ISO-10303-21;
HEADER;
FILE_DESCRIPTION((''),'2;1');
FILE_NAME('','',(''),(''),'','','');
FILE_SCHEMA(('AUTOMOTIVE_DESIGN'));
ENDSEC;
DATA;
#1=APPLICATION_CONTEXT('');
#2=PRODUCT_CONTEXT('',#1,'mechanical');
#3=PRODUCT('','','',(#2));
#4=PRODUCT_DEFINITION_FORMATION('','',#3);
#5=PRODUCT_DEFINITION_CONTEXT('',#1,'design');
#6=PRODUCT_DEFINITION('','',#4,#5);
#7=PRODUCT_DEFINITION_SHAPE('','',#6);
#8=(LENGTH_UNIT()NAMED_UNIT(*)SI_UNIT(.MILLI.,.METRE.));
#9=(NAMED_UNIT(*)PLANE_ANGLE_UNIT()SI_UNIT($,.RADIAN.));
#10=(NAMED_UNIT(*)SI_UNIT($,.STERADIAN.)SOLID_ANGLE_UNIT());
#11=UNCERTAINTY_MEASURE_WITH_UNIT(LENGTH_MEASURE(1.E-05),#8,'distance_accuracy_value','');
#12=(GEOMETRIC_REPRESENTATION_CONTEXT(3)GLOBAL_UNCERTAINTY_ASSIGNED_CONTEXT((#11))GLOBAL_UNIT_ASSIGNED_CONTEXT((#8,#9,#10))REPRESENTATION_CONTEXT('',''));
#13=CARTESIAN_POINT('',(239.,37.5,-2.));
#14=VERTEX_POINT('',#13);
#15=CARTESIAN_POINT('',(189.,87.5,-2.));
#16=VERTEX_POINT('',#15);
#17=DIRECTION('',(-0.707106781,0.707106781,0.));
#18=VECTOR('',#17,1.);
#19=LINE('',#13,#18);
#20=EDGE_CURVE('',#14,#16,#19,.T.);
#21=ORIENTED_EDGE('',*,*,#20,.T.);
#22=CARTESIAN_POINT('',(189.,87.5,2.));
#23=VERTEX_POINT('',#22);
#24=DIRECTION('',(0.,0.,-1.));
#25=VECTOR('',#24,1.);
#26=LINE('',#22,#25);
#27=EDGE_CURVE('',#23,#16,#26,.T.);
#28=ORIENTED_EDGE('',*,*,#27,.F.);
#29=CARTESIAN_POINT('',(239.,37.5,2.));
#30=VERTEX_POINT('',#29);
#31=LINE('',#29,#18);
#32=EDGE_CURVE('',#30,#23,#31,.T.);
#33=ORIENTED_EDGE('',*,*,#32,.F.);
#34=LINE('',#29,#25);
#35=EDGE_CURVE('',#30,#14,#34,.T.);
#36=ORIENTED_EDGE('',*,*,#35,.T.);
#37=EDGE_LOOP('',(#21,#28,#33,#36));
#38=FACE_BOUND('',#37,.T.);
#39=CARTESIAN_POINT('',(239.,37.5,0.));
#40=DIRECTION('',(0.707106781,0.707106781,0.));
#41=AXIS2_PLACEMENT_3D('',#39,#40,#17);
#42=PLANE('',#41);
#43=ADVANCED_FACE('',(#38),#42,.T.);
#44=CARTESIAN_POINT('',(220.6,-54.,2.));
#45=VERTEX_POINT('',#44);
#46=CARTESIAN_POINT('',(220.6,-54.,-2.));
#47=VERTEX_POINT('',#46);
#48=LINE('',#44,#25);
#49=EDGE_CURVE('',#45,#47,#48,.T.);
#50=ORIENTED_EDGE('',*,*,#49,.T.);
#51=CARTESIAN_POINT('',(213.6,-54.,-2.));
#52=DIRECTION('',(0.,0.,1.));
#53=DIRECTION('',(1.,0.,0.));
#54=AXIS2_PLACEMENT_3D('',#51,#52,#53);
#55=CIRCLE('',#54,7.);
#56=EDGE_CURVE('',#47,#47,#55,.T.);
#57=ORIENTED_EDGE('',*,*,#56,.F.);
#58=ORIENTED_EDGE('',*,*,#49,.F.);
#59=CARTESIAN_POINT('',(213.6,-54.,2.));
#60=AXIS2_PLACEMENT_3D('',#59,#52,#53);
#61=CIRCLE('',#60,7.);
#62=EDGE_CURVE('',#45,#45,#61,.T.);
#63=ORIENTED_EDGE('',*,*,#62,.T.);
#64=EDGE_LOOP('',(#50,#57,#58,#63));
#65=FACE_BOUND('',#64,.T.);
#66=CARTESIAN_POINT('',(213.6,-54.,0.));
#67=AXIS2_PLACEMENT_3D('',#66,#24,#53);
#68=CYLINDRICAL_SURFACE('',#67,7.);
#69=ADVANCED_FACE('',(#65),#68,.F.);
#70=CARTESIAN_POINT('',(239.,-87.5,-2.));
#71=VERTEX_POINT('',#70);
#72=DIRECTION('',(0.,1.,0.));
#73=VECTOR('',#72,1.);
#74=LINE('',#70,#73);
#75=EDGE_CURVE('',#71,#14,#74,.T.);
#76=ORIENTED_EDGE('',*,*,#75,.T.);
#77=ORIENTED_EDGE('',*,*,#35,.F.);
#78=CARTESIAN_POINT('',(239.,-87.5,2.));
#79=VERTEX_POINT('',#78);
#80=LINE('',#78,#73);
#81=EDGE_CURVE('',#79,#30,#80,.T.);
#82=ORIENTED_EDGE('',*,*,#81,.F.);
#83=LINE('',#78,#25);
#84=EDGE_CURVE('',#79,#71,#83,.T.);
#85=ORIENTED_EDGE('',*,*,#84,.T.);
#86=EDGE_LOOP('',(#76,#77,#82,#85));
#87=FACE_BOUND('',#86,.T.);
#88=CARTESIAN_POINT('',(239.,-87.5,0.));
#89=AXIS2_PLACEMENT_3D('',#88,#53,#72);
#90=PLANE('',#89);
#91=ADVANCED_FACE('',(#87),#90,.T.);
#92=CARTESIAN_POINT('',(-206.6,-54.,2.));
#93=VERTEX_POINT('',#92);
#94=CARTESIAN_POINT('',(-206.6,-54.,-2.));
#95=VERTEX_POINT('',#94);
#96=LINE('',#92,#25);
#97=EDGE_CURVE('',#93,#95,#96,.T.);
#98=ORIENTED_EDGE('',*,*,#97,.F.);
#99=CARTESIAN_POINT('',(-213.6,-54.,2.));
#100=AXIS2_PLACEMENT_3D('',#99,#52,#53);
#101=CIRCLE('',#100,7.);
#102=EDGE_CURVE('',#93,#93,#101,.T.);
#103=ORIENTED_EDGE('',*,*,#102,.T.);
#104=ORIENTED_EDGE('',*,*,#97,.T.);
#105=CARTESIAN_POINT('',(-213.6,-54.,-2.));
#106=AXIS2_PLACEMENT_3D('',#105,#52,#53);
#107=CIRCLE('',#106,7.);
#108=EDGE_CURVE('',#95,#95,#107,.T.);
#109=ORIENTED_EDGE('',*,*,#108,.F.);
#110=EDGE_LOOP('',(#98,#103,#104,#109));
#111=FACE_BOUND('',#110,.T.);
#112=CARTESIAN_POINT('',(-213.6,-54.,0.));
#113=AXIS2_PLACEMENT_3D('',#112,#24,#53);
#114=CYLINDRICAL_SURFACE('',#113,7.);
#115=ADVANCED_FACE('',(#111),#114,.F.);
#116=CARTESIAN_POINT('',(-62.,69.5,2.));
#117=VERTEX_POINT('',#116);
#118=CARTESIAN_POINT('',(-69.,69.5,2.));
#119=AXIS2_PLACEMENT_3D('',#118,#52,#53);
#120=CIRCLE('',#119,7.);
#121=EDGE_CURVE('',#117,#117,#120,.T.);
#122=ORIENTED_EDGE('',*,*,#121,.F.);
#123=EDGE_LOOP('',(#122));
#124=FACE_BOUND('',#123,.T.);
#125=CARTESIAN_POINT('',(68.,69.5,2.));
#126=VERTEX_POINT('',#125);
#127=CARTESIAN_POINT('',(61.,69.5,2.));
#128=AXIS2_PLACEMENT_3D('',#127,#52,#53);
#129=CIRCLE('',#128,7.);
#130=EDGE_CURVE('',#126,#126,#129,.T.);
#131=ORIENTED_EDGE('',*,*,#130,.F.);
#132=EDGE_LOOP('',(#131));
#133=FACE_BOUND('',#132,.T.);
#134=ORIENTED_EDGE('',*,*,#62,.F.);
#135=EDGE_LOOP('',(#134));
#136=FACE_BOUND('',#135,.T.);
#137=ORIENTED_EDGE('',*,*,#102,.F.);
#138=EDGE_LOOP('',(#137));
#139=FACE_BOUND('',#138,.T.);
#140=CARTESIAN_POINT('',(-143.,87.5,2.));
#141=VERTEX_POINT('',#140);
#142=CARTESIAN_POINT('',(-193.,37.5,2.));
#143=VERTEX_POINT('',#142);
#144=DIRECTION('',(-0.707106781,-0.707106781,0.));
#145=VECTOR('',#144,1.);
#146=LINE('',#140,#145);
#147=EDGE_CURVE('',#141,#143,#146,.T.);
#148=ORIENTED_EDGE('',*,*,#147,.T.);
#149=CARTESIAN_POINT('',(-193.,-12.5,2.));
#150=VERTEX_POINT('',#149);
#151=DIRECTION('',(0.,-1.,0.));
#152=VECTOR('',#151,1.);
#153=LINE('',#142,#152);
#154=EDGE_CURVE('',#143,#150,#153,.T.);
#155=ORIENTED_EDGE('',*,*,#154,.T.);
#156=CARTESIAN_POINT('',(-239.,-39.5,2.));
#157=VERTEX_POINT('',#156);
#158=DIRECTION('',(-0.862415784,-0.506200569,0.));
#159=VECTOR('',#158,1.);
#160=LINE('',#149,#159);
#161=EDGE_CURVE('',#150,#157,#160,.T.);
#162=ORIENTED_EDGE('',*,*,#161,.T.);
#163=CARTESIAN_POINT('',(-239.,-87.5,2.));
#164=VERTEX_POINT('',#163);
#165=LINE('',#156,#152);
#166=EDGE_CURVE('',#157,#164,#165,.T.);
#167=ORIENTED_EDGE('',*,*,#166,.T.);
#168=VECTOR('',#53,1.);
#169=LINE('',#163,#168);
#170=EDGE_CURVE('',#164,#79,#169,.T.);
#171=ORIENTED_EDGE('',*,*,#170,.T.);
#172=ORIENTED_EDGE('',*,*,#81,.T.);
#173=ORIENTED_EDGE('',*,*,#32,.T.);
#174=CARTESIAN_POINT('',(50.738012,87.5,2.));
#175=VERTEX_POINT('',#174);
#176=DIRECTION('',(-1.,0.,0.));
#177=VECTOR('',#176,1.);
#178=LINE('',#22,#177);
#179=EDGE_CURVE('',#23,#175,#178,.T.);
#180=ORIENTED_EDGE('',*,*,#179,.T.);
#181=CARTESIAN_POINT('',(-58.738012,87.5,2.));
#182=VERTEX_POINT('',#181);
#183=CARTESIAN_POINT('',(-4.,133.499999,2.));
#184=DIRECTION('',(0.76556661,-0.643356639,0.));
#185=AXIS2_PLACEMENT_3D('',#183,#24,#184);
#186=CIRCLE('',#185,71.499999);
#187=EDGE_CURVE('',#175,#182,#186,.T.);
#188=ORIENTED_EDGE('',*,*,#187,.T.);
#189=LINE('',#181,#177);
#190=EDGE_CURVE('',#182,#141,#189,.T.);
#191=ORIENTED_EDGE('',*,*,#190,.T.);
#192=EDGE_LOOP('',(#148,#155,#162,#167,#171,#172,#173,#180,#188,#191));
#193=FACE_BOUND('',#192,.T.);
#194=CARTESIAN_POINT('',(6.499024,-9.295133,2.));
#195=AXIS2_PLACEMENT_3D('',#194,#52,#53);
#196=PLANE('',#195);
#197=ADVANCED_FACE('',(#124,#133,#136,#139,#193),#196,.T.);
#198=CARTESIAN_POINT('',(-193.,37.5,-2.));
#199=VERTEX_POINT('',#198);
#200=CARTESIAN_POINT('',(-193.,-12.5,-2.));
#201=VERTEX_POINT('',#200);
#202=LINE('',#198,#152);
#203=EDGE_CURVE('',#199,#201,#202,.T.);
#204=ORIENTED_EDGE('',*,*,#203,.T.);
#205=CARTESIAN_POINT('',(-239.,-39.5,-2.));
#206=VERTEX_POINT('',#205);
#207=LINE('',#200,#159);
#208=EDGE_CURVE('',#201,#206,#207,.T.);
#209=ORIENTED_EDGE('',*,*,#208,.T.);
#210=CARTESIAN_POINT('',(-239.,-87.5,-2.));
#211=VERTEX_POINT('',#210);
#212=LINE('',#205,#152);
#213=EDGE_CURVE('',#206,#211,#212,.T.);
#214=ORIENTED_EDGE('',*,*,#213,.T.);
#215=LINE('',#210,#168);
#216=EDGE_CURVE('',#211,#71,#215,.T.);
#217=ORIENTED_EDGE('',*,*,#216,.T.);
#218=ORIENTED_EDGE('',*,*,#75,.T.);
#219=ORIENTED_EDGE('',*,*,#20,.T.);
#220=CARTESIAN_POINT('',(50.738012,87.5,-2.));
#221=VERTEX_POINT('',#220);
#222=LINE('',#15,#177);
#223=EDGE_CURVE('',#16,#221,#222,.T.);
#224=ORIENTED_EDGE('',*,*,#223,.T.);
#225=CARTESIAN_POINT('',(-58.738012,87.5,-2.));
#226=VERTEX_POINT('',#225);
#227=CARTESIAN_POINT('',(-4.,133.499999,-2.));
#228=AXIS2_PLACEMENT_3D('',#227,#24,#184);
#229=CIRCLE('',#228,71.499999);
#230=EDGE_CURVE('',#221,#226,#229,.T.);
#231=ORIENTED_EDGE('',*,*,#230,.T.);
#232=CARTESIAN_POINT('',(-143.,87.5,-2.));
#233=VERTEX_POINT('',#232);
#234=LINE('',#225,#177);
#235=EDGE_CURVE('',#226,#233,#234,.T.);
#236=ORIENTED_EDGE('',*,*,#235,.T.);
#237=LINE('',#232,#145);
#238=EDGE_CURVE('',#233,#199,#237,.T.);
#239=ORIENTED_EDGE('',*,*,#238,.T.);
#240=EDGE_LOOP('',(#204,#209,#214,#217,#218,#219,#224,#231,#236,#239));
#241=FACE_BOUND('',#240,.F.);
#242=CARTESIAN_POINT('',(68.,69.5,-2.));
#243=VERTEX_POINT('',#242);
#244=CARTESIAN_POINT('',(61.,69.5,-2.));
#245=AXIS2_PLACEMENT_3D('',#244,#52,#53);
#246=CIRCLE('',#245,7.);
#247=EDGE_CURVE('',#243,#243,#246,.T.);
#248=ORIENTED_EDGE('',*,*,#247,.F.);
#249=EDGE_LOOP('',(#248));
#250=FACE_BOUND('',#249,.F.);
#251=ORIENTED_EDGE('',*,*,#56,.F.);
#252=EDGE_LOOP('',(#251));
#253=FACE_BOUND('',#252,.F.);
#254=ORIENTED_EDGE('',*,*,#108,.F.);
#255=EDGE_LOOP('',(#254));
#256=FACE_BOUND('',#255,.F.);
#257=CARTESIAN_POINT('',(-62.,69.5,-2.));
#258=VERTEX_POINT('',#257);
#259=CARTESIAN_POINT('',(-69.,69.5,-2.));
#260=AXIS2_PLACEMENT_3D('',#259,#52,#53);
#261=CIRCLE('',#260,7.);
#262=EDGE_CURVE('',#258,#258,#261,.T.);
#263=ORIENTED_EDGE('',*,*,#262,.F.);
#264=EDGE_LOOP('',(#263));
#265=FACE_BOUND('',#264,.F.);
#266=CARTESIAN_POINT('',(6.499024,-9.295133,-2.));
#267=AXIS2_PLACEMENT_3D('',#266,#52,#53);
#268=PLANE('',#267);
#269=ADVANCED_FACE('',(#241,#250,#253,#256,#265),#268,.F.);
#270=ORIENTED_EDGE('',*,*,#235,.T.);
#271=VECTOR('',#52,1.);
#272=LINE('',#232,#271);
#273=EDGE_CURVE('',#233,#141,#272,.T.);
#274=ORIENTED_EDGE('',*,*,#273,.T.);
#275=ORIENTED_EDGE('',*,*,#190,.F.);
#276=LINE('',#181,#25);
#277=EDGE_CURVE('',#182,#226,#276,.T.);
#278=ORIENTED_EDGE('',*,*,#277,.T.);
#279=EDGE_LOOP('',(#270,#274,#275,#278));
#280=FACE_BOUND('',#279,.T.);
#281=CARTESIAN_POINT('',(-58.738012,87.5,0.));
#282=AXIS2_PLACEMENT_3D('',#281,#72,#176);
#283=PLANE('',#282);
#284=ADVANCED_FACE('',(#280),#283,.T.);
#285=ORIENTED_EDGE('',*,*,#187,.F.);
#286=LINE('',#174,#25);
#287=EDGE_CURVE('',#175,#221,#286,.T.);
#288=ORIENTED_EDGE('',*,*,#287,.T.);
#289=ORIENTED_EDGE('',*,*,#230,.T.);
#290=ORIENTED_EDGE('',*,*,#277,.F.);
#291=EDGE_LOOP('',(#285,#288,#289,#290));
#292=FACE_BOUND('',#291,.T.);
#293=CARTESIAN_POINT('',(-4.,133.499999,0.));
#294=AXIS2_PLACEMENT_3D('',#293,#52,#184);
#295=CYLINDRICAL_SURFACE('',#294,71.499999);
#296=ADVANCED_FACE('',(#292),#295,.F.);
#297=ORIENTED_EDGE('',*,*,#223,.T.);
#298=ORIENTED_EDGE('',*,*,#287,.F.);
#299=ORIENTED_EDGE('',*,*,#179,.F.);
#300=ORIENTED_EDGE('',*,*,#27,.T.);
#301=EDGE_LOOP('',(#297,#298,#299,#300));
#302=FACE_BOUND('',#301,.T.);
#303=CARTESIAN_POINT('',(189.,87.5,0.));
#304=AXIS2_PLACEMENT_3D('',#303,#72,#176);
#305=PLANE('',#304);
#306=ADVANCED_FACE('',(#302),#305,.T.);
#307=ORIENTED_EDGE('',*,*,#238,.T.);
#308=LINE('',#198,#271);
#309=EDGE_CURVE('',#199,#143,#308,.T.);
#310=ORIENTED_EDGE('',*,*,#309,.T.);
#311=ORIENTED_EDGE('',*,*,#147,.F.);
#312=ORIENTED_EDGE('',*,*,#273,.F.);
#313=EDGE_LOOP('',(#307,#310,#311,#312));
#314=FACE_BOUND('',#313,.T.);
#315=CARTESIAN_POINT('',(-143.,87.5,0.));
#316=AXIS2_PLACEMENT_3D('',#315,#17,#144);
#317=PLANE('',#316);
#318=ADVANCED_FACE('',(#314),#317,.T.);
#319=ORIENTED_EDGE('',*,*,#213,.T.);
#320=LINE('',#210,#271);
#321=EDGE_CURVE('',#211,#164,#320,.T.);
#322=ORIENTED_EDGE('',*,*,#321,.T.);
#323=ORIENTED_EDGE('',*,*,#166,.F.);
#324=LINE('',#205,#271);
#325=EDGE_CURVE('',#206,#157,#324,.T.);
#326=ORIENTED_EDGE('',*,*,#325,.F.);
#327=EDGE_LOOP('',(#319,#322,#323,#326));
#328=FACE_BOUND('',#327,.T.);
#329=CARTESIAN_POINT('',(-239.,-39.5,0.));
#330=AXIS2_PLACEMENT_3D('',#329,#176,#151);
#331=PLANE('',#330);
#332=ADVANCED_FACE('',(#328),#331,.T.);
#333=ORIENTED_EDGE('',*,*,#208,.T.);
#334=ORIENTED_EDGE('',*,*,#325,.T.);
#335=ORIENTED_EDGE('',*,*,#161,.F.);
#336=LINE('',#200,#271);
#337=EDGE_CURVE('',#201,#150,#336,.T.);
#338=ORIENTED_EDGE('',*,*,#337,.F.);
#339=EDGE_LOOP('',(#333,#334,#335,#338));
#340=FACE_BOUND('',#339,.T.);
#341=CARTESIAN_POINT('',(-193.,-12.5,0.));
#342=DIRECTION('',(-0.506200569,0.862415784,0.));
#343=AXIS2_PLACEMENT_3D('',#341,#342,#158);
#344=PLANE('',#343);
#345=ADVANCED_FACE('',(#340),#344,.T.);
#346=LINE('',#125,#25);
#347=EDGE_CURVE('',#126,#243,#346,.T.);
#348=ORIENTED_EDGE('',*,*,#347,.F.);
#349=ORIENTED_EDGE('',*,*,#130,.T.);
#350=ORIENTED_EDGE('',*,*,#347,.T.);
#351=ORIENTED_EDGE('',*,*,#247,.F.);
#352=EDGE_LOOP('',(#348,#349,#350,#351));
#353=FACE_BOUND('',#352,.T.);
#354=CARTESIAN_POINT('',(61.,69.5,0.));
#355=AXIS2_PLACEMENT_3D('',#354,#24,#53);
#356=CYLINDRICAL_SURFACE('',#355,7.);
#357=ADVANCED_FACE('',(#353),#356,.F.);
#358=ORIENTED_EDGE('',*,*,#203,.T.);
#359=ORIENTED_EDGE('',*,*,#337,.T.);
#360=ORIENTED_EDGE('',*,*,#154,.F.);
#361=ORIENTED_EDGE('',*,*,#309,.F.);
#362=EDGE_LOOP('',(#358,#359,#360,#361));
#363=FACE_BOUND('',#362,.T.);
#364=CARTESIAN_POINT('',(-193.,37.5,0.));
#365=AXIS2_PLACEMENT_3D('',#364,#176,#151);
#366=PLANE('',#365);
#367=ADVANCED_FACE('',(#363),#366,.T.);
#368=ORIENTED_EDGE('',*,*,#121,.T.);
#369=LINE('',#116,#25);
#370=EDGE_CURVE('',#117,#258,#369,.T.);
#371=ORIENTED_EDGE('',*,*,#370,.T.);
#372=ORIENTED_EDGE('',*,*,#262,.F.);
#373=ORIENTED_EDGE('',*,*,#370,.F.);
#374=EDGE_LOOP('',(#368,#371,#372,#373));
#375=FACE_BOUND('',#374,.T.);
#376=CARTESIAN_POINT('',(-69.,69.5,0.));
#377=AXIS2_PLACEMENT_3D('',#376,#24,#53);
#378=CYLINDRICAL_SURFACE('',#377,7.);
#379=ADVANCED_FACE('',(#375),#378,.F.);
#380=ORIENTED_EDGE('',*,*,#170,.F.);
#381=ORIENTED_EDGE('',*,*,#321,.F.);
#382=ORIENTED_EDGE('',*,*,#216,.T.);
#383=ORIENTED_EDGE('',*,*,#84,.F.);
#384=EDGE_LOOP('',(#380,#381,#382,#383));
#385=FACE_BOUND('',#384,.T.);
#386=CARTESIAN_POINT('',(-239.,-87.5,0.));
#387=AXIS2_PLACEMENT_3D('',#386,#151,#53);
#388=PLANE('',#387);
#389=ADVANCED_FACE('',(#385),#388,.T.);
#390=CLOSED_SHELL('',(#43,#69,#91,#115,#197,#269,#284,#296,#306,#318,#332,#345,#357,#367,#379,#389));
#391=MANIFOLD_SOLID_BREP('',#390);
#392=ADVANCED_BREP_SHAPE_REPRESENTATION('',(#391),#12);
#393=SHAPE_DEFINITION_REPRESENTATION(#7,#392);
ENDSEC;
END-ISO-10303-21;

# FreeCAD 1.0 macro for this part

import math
import FreeCAD as App
import Part
import Sketcher

V = App.Vector

doc = App.newDocument("Part")
params = doc.addObject("Spreadsheet::Sheet", "Params")
for row, (alias, value) in enumerate([
    ("sketch1_diameter", "14 mm"),
    ("sketch1_radius", "71.499999 mm"),
    ("sketch1_width", "478 mm"),
    ("sketch1_height", "50 mm"),
    ("sketch1_height2", "48 mm"),
    ("pad1_length", "4 mm"),
], start=1):
    params.set(f"A{row}", alias)
    params.set(f"B{row}", "=" + value)
    params.setAlias(f"B{row}", alias)

body = doc.addObject("PartDesign::Body", "Body")

# Sketch on XY plane
sketch1 = body.newObject("Sketcher::SketchObject", "Sketch")
sketch1.AttachmentSupport = (doc.getObject("XY_Plane"), [""])
sketch1.MapMode = "FlatFace"
sketch1.addGeometry(Part.LineSegment(V(-59, 88, 0), V(-143, 88, 0)), False)
sketch1.addGeometry(Part.LineSegment(V(-143, 88, 0), V(-193, 38, 0)), False)
sketch1.addGeometry(Part.LineSegment(V(-193, 38, 0), V(-193, -12, 0)), False)
sketch1.addGeometry(Part.LineSegment(V(-193, -12, 0), V(-239, -40, 0)), False)
sketch1.addGeometry(Part.LineSegment(V(-239, -40, 0), V(-239, -88, 0)), False)
sketch1.addGeometry(Part.LineSegment(V(-239, -88, 0), V(239, -88, 0)), False)
sketch1.addGeometry(Part.LineSegment(V(239, -88, 0), V(239, 38, 0)), False)
sketch1.addGeometry(Part.LineSegment(V(239, 38, 0), V(189, 88, 0)), False)
sketch1.addGeometry(Part.LineSegment(V(189, 88, 0), V(51, 88, 0)), False)
sketch1.addGeometry(Part.ArcOfCircle(Part.Circle(V(-4, 133, 0), V(0, 0, 1), 71), math.radians(-140), math.radians(-40)), False)
sketch1.addGeometry(Part.Circle(V(-214, -54, 0), V(0, 0, 1), 7), False)
sketch1.addGeometry(Part.Circle(V(214, -54, 0), V(0, 0, 1), 7), False)
sketch1.addGeometry(Part.Circle(V(-69, 70, 0), V(0, 0, 1), 7), False)
sketch1.addGeometry(Part.Circle(V(61, 70, 0), V(0, 0, 1), 7), False)
sketch1.addConstraint(Sketcher.Constraint("Coincident", 0, 2, 1, 1))
sketch1.addConstraint(Sketcher.Constraint("Coincident", 1, 2, 2, 1))
sketch1.addConstraint(Sketcher.Constraint("Coincident", 2, 2, 3, 1))
sketch1.addConstraint(Sketcher.Constraint("Coincident", 3, 2, 4, 1))
sketch1.addConstraint(Sketcher.Constraint("Coincident", 4, 2, 5, 1))
sketch1.addConstraint(Sketcher.Constraint("Coincident", 5, 2, 6, 1))
sketch1.addConstraint(Sketcher.Constraint("Coincident", 6, 2, 7, 1))
sketch1.addConstraint(Sketcher.Constraint("Coincident", 7, 2, 8, 1))
sketch1.addConstraint(Sketcher.Constraint("Coincident", 8, 2, 9, 2))
sketch1.addConstraint(Sketcher.Constraint("Coincident", 9, 1, 0, 1))
sketch1.addConstraint(Sketcher.Constraint("Horizontal", 0))
sketch1.addConstraint(Sketcher.Constraint("Vertical", 2))
sketch1.addConstraint(Sketcher.Constraint("Vertical", 4))
sketch1.addConstraint(Sketcher.Constraint("Horizontal", 5))
sketch1.addConstraint(Sketcher.Constraint("Vertical", 6))
sketch1.addConstraint(Sketcher.Constraint("Horizontal", 8))
sketch1.addConstraint(Sketcher.Constraint("Equal", 10, 11))
sketch1.addConstraint(Sketcher.Constraint("Equal", 11, 12))
sketch1.addConstraint(Sketcher.Constraint("Equal", 12, 13))
sketch1.addConstraint(Sketcher.Constraint("Symmetric", 10, 3, 11, 3, -2))
sketch1.addConstraint(Sketcher.Constraint("Perpendicular", 1, 7))
sketch1.addConstraint(Sketcher.Constraint("Horizontal", 12, 3, 13, 3))
sketch1.addConstraint(Sketcher.Constraint("Horizontal", 1, 2, 6, 2))
sketch1.addConstraint(Sketcher.Constraint("Horizontal", 0, 2, 7, 2))
sketch1.addConstraint(Sketcher.Constraint("Equal", 1, 7))
sketch1.addConstraint(Sketcher.Constraint("Diameter", 10, 14.0))
sketch1.addConstraint(Sketcher.Constraint("Radius", 9, 71.499999))
sketch1.addConstraint(Sketcher.Constraint("DistanceX", 5, 1, 5, 2, 478.0))
sketch1.addConstraint(Sketcher.Constraint("DistanceY", 2, 2, 2, 1, 50.0))
sketch1.addConstraint(Sketcher.Constraint("DistanceY", 4, 2, 4, 1, 48.0))
sketch1.addConstraint(Sketcher.Constraint("DistanceY", 6, 1, 6, 2, 125.0))
sketch1.addConstraint(Sketcher.Constraint("DistanceX", 9, 3, -1, 1, 4.0))
sketch1.addConstraint(Sketcher.Constraint("DistanceY", 10, 3, -1, 1, 54.0))
sketch1.addConstraint(Sketcher.Constraint("DistanceX", 12, 3, -1, 1, 69.0))
sketch1.addConstraint(Sketcher.Constraint("DistanceX", -1, 1, 13, 3, 61.0))
sketch1.addConstraint(Sketcher.Constraint("DistanceX", 0, 2, -1, 1, 143.0))
sketch1.addConstraint(Sketcher.Constraint("DistanceX", 1, 2, -1, 1, 193.0))
sketch1.addConstraint(Sketcher.Constraint("DistanceX", 3, 2, -1, 1, 239.0))
sketch1.addConstraint(Sketcher.Constraint("DistanceY", 12, 3, 9, 3, 63.999999))
sketch1.addConstraint(Sketcher.Constraint("DistanceY", 12, 3, 0, 2, 18.0))
sketch1.addConstraint(Sketcher.Constraint("DistanceY", -1, 1, 9, 3, 133.499999))
sketch1.addConstraint(Sketcher.Constraint("DistanceX", 10, 3, -1, 1, 213.6))
sketch1.setExpression("Constraints[25]", "Params.sketch1_diameter")
sketch1.setExpression("Constraints[26]", "Params.sketch1_radius")
sketch1.setExpression("Constraints[27]", "Params.sketch1_width")
sketch1.setExpression("Constraints[28]", "Params.sketch1_height")
sketch1.setExpression("Constraints[29]", "Params.sketch1_height2")
pad1 = body.newObject("PartDesign::Pad", "Pad")
pad1.Profile = sketch1
pad1.setExpression("Length", "Params.pad1_length")
pad1.Midplane = True

doc.recompute()
